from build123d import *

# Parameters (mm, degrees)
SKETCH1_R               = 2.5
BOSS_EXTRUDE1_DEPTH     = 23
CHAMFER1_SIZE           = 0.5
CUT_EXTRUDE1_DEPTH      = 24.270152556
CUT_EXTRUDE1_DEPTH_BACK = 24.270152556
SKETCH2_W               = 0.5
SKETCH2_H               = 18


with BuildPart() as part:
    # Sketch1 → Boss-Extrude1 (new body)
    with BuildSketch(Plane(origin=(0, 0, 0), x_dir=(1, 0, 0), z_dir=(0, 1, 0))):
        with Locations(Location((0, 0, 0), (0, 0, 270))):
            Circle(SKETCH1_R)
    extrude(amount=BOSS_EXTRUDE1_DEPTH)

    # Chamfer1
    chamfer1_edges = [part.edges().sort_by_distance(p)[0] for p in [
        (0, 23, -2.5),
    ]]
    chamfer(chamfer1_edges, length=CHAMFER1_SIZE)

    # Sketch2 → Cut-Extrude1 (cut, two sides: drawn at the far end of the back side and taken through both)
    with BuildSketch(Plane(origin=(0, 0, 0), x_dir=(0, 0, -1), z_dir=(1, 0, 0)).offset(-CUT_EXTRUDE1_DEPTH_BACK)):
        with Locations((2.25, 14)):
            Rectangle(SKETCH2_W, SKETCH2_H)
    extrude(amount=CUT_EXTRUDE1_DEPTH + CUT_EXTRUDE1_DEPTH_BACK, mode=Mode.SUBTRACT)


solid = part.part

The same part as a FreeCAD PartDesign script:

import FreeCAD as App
import Part
import Sketcher

V = App.Vector


def edges_at(feature, points):
    """Names of the edges that pass closest to the given points."""
    edges = feature.Shape.Edges
    near = lambda p: min(range(len(edges)), key=lambda i: edges[i].distToShape(Part.Vertex(*p))[0])
    return sorted({f"Edge{near(p) + 1}" for p in points})

doc = App.newDocument("Part")
body = doc.addObject("PartDesign::Body", "Body")

# Sketch on XZ plane
sketch1 = doc.addObject("Sketcher::SketchObject", "Sketch")
body.addObject(sketch1)
sketch1.AttachmentSupport = (doc.XZ_Plane, [""])
sketch1.MapMode = "FlatFace"
sketch1.addGeometry(Part.Circle(V(0, 0, 0), V(0, 0, 1), 2.5), False)
sketch1.addConstraint(Sketcher.Constraint("Coincident", 0, 3, -1, 1))
sketch1.addConstraint(Sketcher.Constraint("Diameter", 0, 5.0))
pad1 = doc.addObject("PartDesign::Pad", "Pad")
body.addObject(pad1)
pad1.Profile = sketch1
pad1.Length = 23
pad1.Reversed = True
doc.recompute()

chamfer = doc.addObject("PartDesign::Chamfer", "Chamfer")
body.addObject(chamfer)
chamfer.Base = (pad1, edges_at(pad1, [(0, 23, -2.5)]))
chamfer.Size = 0.5

# Sketch on YZ plane
sketch2 = doc.addObject("Sketcher::SketchObject", "Sketch001")
body.addObject(sketch2)
sketch2.AttachmentSupport = (doc.YZ_Plane, [""])
sketch2.MapMode = "FlatFace"
sketch2.addGeometry(Part.LineSegment(V(23, -2, 0), V(5, -2, 0)), False)
sketch2.addGeometry(Part.LineSegment(V(5, -2, 0), V(5, -2.5, 0)), False)
sketch2.addGeometry(Part.LineSegment(V(5, -2.5, 0), V(23, -2.5, 0)), False)
sketch2.addGeometry(Part.LineSegment(V(23, -2.5, 0), V(23, -2, 0)), False)
sketch2.addConstraint(Sketcher.Constraint("Coincident", 0, 2, 1, 1))
sketch2.addConstraint(Sketcher.Constraint("Coincident", 1, 2, 2, 1))
sketch2.addConstraint(Sketcher.Constraint("Coincident", 2, 2, 3, 1))
sketch2.addConstraint(Sketcher.Constraint("Coincident", 3, 2, 0, 1))
sketch2.addConstraint(Sketcher.Constraint("Horizontal", 0))
sketch2.addConstraint(Sketcher.Constraint("Vertical", 1))
sketch2.addConstraint(Sketcher.Constraint("Horizontal", 2))
sketch2.addConstraint(Sketcher.Constraint("Vertical", 3))
sketch2.addConstraint(Sketcher.Constraint("DistanceX", 0, 2, 0, 1, 18.0))
sketch2.addConstraint(Sketcher.Constraint("DistanceY", 1, 2, 1, 1, 0.5))
sketch2.addConstraint(Sketcher.Constraint("DistanceX", -1, 1, 0, 2, 5.0))
sketch2.addConstraint(Sketcher.Constraint("DistanceY", 0, 2, -1, 1, 2.0))
pocket1 = doc.addObject("PartDesign::Pocket", "Pocket")
body.addObject(pocket1)
pocket1.Profile = sketch2
pocket1.Type = "ThroughAll"
pocket1.Midplane = True

doc.recompute()
